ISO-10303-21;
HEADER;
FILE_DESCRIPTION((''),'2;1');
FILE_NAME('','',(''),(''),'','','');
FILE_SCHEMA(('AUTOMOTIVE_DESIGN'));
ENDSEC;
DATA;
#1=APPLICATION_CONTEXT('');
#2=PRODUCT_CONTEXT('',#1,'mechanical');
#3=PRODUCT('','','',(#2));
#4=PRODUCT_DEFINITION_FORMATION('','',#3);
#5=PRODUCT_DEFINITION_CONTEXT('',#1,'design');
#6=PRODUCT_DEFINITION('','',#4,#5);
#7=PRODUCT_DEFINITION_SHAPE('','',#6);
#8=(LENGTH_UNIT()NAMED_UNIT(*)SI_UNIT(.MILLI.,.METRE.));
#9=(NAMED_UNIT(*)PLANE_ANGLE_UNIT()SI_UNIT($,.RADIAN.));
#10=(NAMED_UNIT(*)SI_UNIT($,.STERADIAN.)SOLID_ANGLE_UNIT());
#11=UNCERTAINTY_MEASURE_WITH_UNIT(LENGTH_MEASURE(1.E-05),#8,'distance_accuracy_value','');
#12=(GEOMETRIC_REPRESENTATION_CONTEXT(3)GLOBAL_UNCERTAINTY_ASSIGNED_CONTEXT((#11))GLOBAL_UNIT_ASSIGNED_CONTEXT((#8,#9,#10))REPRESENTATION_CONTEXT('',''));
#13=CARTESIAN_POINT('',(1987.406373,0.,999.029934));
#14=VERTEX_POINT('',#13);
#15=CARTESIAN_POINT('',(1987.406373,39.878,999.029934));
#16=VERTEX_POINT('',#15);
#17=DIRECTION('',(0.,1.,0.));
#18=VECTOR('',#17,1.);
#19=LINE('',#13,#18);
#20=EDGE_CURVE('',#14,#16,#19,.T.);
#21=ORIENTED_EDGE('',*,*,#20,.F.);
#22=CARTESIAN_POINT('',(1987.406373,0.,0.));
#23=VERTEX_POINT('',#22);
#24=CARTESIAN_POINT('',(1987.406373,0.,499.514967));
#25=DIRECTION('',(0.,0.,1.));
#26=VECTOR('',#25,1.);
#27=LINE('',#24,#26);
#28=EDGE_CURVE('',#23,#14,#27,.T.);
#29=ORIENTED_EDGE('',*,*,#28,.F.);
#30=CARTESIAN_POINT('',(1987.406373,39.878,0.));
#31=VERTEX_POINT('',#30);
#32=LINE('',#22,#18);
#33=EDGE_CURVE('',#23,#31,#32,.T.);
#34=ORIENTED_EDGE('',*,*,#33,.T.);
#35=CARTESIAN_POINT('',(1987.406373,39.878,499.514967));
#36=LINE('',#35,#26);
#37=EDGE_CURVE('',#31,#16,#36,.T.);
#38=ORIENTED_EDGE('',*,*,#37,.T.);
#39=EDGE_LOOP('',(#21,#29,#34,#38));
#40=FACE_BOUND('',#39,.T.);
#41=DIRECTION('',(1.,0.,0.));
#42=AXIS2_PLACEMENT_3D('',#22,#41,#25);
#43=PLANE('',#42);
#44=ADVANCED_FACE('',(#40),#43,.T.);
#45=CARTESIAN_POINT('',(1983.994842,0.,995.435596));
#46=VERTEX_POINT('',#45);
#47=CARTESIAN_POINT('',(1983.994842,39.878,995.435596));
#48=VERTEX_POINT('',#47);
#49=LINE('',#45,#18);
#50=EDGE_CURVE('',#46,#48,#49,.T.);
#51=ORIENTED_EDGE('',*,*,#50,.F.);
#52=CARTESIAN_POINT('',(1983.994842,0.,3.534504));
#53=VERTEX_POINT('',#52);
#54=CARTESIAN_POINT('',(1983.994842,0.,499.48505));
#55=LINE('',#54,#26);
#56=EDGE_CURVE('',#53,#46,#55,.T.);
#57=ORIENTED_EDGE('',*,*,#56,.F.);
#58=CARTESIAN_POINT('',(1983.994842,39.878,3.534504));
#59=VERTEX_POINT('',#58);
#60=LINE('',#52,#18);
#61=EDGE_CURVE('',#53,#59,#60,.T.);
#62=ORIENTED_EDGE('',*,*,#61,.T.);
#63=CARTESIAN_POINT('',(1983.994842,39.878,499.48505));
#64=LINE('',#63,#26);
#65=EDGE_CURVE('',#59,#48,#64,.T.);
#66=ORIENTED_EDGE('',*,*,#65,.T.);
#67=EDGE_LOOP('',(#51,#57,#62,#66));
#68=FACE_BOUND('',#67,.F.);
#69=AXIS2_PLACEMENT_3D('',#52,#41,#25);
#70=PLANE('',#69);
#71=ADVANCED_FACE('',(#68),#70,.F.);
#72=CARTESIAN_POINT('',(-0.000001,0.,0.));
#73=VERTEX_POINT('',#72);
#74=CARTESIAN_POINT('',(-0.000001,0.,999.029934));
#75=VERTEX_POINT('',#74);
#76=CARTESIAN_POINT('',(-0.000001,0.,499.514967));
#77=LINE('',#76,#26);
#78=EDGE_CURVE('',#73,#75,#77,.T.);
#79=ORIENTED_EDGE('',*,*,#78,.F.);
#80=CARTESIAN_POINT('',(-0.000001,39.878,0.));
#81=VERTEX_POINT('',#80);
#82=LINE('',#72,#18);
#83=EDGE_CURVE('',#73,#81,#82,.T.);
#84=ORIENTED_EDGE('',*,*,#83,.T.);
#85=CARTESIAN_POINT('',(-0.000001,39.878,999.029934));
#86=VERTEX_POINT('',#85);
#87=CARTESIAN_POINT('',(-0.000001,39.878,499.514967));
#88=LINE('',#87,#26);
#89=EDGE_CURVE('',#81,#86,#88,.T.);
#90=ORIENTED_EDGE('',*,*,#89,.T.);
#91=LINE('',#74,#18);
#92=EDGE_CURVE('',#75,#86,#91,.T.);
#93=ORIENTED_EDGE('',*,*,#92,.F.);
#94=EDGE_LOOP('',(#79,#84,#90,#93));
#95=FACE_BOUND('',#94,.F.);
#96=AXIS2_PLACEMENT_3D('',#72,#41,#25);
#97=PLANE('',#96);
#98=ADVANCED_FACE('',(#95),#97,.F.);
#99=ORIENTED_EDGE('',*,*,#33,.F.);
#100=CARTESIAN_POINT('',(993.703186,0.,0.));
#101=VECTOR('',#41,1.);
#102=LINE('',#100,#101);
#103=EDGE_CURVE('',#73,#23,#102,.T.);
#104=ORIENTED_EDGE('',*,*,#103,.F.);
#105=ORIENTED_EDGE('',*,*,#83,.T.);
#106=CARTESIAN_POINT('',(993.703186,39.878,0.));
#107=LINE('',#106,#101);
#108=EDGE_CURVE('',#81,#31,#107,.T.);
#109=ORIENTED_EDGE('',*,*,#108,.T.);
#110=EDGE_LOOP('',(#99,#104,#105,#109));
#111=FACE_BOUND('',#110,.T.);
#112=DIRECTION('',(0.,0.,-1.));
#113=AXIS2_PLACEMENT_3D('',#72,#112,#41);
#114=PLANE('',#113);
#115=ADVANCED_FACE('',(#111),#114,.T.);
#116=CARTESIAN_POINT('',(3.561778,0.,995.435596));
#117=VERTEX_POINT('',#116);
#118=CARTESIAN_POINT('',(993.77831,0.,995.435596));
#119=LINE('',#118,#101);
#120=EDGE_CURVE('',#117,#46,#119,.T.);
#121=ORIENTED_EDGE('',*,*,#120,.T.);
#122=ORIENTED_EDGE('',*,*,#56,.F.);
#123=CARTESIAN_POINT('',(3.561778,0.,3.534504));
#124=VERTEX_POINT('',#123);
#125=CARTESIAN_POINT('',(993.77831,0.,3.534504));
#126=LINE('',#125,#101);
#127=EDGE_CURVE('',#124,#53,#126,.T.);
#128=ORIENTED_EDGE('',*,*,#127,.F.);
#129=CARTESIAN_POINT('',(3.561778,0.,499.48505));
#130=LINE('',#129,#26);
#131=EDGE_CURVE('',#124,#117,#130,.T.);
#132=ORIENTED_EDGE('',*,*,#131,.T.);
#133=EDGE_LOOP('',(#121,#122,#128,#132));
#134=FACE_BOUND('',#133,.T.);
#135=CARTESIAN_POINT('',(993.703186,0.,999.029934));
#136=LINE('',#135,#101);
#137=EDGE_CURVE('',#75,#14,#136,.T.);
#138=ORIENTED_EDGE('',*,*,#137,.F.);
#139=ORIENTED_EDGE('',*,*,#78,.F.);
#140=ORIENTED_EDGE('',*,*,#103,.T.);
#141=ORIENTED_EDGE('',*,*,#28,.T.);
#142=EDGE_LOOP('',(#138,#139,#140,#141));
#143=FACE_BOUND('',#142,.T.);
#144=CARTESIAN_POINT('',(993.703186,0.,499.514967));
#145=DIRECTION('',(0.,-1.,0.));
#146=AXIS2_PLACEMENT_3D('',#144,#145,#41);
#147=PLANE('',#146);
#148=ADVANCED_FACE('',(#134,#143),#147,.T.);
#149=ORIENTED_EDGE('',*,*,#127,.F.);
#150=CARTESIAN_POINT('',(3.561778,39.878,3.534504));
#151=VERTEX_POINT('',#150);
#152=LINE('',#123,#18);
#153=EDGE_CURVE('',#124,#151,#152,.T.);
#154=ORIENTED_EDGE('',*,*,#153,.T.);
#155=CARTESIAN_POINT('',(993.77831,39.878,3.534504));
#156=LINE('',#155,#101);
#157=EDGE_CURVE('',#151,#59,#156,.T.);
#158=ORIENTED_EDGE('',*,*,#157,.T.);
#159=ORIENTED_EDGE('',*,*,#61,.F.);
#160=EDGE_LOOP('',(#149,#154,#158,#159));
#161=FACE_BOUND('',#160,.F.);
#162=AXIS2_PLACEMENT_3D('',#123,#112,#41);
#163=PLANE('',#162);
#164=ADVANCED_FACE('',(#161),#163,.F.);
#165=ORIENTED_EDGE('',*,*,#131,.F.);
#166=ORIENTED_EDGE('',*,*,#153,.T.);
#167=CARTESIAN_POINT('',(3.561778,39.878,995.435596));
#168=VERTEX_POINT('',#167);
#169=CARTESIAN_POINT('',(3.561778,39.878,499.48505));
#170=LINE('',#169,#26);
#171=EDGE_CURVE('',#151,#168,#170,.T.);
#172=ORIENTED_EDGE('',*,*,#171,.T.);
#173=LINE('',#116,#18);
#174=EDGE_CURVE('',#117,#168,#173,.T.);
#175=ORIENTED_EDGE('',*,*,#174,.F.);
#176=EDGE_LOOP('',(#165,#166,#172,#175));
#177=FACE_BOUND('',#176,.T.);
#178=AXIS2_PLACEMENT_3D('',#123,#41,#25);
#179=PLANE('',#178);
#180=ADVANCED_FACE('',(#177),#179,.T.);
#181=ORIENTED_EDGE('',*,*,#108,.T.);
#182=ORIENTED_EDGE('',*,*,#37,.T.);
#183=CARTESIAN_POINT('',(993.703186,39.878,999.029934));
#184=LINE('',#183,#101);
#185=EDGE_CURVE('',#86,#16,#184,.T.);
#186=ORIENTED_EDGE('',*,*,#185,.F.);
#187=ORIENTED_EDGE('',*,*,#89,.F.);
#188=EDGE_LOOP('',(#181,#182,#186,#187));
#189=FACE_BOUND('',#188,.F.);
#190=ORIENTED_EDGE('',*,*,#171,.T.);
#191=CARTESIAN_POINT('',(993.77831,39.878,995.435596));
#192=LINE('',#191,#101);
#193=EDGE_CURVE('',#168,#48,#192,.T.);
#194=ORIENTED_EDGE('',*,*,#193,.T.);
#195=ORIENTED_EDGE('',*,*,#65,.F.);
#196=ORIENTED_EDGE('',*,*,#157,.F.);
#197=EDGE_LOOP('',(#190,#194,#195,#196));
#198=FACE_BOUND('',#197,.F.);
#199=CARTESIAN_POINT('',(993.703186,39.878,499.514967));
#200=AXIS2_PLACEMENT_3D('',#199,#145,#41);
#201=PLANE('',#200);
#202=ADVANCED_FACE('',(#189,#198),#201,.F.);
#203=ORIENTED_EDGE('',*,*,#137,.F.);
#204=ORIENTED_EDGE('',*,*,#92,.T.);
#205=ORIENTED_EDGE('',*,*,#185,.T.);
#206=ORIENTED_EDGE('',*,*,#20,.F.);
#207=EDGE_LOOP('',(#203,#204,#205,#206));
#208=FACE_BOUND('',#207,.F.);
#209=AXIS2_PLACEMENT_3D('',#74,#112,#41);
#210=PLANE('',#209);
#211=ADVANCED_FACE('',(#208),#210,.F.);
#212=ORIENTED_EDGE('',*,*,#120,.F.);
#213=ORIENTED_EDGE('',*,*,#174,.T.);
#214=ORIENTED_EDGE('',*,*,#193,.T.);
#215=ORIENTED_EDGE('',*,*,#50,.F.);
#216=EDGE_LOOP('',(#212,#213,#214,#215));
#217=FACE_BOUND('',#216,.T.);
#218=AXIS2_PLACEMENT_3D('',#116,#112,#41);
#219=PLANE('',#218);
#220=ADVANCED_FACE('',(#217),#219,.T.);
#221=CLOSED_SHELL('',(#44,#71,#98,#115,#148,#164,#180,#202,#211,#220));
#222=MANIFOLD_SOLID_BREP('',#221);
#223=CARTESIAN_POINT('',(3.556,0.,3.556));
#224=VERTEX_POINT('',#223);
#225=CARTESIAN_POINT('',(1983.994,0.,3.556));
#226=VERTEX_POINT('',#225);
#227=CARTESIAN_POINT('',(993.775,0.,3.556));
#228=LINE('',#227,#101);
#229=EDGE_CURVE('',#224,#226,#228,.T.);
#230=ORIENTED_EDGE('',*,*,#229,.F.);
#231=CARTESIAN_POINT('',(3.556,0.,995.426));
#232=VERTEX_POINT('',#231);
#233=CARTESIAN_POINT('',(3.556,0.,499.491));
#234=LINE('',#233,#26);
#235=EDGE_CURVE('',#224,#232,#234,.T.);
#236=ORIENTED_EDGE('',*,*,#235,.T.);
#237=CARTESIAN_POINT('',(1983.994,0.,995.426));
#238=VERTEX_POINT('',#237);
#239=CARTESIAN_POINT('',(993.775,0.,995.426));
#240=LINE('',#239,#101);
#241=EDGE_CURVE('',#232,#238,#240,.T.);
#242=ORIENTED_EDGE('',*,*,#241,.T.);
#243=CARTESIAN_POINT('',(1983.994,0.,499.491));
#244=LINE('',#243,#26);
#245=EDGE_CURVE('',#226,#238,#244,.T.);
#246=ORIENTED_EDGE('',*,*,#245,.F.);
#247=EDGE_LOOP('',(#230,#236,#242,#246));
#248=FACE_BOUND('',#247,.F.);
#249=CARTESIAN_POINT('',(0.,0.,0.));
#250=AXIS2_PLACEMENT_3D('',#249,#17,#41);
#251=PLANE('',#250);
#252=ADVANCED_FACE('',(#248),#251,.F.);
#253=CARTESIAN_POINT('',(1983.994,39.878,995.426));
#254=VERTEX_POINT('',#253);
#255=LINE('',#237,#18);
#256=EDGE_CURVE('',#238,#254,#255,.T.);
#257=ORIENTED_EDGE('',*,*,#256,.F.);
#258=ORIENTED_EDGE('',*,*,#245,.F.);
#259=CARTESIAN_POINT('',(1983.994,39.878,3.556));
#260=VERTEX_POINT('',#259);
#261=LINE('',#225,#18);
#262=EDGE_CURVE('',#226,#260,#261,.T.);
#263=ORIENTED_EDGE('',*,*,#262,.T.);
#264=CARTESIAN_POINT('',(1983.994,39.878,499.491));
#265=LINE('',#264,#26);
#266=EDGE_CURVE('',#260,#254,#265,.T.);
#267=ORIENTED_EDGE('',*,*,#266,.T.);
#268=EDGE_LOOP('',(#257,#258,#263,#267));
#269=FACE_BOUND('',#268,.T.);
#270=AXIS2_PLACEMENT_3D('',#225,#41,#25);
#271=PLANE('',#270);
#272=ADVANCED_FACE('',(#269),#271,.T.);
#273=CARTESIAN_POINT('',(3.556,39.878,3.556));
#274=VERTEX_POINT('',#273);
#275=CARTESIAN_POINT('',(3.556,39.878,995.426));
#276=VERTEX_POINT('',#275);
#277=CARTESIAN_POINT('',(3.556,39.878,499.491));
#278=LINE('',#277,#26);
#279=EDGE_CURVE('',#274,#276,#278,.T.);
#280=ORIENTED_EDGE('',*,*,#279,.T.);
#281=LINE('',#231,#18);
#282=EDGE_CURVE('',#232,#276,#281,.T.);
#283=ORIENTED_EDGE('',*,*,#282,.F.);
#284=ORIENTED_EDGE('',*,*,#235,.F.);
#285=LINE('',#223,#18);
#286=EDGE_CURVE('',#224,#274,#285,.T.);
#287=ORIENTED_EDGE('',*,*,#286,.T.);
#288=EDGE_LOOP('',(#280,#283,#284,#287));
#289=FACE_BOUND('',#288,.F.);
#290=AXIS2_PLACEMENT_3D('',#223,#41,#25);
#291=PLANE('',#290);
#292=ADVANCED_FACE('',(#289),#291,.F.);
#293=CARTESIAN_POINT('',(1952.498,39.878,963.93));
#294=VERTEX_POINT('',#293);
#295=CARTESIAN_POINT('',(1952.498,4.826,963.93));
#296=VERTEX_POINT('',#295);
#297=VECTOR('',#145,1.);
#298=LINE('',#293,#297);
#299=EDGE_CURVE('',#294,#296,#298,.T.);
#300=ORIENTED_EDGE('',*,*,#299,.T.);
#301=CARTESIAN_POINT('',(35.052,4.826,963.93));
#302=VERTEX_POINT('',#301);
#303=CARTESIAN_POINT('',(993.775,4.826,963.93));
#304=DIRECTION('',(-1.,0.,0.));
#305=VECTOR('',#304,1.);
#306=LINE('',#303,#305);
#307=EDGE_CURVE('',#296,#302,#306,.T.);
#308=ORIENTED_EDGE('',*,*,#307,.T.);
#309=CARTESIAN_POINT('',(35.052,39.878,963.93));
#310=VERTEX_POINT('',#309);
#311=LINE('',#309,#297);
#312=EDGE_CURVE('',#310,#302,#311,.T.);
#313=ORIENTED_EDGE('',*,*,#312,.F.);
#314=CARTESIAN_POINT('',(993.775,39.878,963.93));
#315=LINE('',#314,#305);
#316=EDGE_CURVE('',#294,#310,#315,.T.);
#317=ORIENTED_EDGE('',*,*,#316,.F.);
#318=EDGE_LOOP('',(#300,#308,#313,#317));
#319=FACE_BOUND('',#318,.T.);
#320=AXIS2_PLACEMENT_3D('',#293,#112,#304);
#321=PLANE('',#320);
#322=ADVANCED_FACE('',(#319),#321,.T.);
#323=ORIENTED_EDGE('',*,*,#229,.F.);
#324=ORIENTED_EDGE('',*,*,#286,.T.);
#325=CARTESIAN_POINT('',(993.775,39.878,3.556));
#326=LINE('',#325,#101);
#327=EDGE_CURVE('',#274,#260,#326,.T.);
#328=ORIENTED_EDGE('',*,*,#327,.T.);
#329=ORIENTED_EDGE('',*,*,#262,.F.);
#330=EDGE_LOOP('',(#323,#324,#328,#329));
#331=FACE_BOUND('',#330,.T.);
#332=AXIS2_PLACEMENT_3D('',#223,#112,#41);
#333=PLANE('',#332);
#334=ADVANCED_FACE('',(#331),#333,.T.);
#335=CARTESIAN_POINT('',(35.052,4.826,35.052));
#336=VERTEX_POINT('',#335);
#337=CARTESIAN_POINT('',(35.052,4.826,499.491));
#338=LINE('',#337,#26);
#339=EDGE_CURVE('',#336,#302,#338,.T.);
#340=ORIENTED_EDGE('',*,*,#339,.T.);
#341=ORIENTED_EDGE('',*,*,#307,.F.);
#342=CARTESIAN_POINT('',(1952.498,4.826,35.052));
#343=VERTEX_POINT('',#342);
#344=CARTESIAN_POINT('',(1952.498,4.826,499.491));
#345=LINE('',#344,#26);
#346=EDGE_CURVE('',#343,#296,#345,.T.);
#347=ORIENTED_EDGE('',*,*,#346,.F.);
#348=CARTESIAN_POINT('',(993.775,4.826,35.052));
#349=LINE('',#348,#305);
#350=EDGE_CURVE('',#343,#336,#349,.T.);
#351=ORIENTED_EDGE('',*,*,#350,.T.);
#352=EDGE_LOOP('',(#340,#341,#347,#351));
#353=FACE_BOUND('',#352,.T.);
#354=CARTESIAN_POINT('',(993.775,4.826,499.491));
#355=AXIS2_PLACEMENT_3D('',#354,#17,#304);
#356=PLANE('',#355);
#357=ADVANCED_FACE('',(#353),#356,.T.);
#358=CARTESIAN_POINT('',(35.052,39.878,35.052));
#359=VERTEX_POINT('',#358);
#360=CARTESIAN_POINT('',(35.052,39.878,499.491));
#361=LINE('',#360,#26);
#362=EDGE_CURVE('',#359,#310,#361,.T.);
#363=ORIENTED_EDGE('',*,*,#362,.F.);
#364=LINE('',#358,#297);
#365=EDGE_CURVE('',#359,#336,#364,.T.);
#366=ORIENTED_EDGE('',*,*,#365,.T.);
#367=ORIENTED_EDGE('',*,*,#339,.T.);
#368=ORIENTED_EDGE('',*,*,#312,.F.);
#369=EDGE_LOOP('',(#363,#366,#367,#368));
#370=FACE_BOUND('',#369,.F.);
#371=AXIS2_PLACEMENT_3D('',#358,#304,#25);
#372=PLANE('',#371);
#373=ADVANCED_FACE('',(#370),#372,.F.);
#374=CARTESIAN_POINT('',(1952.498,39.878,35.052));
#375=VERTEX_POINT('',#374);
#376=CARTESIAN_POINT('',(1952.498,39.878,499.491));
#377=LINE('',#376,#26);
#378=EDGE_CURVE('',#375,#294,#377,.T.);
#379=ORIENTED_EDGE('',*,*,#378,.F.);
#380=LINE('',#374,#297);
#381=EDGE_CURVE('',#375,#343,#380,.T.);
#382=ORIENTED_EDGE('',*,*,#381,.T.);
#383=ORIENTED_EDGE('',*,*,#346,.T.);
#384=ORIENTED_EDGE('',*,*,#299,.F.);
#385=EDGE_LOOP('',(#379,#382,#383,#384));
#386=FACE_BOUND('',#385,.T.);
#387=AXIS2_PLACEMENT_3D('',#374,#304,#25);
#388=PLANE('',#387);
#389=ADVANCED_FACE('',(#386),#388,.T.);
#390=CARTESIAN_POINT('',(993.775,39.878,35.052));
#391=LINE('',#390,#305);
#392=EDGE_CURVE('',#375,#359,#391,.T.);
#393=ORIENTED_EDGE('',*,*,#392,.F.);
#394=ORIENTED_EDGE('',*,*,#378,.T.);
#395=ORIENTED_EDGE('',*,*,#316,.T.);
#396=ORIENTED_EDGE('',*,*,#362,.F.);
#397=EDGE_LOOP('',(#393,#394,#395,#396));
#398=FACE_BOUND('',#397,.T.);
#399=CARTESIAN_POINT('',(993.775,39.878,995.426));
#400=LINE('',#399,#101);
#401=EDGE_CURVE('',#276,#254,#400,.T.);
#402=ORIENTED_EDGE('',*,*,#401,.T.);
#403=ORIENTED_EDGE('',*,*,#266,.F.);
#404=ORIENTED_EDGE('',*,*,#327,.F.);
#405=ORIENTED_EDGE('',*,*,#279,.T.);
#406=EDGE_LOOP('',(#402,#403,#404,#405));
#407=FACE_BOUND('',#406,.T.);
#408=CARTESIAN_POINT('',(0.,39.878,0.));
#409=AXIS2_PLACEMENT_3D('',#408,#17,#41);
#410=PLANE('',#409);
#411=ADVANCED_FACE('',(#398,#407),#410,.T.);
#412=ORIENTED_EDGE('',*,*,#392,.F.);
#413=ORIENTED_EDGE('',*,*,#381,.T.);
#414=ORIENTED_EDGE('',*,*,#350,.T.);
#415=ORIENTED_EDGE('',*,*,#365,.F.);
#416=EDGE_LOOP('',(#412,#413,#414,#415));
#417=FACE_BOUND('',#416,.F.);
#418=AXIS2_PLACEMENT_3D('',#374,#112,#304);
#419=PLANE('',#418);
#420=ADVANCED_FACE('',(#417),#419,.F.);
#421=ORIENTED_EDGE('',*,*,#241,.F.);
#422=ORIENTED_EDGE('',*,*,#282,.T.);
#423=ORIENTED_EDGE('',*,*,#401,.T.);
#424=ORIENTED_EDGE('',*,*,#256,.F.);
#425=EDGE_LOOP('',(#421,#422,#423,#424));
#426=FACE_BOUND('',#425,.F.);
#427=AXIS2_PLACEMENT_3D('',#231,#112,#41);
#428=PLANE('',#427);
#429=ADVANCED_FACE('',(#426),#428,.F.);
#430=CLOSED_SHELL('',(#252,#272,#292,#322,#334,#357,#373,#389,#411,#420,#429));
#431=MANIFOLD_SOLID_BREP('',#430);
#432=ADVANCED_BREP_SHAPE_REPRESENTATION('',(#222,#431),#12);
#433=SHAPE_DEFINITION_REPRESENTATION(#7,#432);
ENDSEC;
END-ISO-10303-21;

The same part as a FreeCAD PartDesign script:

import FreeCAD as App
import Part
import Sketcher

V = App.Vector
Q = App.Units.Quantity


def add_polygon(sketch, points):
    """Adds a closed chain of lines whose ends are joined by coincident constraints."""
    first, n = sketch.GeometryCount, len(points)
    for a, b in zip(points, points[1:] + points[:1]):
        sketch.addGeometry(Part.LineSegment(App.Vector(*a, 0), App.Vector(*b, 0)), False)
    for i in range(n):
        sketch.addConstraint(Sketcher.Constraint("Coincident", first + i, 2, first + (i + 1) % n, 1))

doc = App.newDocument("Part")
body = doc.addObject("PartDesign::Body", "Body")

sketch1 = doc.addObject("Sketcher::SketchObject", "Sketch")
body.addObject(sketch1)
sketch1.AttachmentSupport = (doc.XY_Plane, [""])
sketch1.MapMode = "FlatFace"
add_polygon(sketch1, [(0, 40), (0, 0), (1988, 0), (1988, 40)])
sketch1.addConstraint([
    Sketcher.Constraint("Vertical", 0),
    Sketcher.Constraint("Horizontal", 1),
    Sketcher.Constraint("Vertical", 2),
    Sketcher.Constraint("Horizontal", 3),
    Sketcher.Constraint("Coincident", 0, 2, -1, 1),
    Sketcher.Constraint("DistanceX", 1, 1, 1, 2, Q("78.25 in")),
    Sketcher.Constraint("DistanceY", 0, 2, 0, 1, Q("1.57 in")),
])
pad1 = doc.addObject("PartDesign::Pad", "Pad")
body.addObject(pad1)
pad1.Profile = sketch1
pad1.Length = Q("39.33 in")

sketch2 = doc.addObject("Sketcher::SketchObject", "Sketch001")
body.addObject(sketch2)
sketch2.AttachmentSupport = (doc.XZ_Plane, [""])
sketch2.MapMode = "FlatFace"
sketch2.AttachmentOffset = App.Placement(V(0, 0, -1.57 * 25.4), App.Rotation())
add_polygon(sketch2, [(1952, 964), (1952, 35), (35, 35), (35, 964)])
sketch2.addConstraint([
    Sketcher.Constraint("Vertical", 0),
    Sketcher.Constraint("Horizontal", 1),
    Sketcher.Constraint("Vertical", 2),
    Sketcher.Constraint("Horizontal", 3),
    Sketcher.Constraint("DistanceX", 1, 2, 1, 1, Q("75.49 in")),
    Sketcher.Constraint("DistanceY", 0, 2, 0, 1, Q("36.57 in")),
    Sketcher.Constraint("DistanceX", -1, 1, 0, 2, Q("76.87 in")),
    Sketcher.Constraint("DistanceY", -1, 1, 0, 2, Q("1.38 in")),
])
pocket1 = doc.addObject("PartDesign::Pocket", "Pocket")
body.addObject(pocket1)
pocket1.Profile = sketch2
pocket1.Length = Q("1.38 in")
pocket1.Reversed = True

sketch3 = doc.addObject("Sketcher::SketchObject", "Sketch002")
body.addObject(sketch3)
sketch3.AttachmentSupport = (doc.XZ_Plane, [""])
sketch3.MapMode = "FlatFace"
add_polygon(sketch3, [(0, 999), (0, 0), (1988, 0), (1988, 999)])
add_polygon(sketch3, [(1984, 4), (4, 4), (4, 995), (1984, 995)])
sketch3.addConstraint([
    Sketcher.Constraint("Vertical", 0),
    Sketcher.Constraint("Horizontal", 1),
    Sketcher.Constraint("Vertical", 2),
    Sketcher.Constraint("Horizontal", 3),
    Sketcher.Constraint("Horizontal", 4),
    Sketcher.Constraint("Vertical", 5),
    Sketcher.Constraint("Horizontal", 6),
    Sketcher.Constraint("Vertical", 7),
    Sketcher.Constraint("Coincident", 0, 2, -1, 1),
    Sketcher.Constraint("DistanceX", 1, 1, 1, 2, Q("78.25 in")),
    Sketcher.Constraint("DistanceX", 4, 2, 4, 1, Q("77.97 in")),
    Sketcher.Constraint("DistanceY", 0, 2, 0, 1, Q("39.33 in")),
    Sketcher.Constraint("DistanceY", 5, 1, 5, 2, Q("39.05 in")),
    Sketcher.Constraint("DistanceX", -1, 1, 4, 2, Q("0.14 in")),
    Sketcher.Constraint("DistanceY", -1, 1, 4, 2, Q("0.14 in")),
])
pocket2 = doc.addObject("PartDesign::Pocket", "Pocket001")
body.addObject(pocket2)
pocket2.Profile = sketch3
pocket2.Length = Q("1.57 in")
body2 = doc.addObject("PartDesign::Body", "Body001")

sketch4 = doc.addObject("Sketcher::SketchObject", "Sketch003")
body2.addObject(sketch4)
sketch4.AttachmentSupport = (doc.getObject("XZ_Plane001"), [""])
sketch4.MapMode = "FlatFace"
add_polygon(sketch4, [(0, 999), (0, 0), (1987, 0), (1987, 999)])
add_polygon(sketch4, [(1984, 4), (4, 4), (4, 995), (1984, 995)])
sketch4.addConstraint([
    Sketcher.Constraint("Vertical", 0),
    Sketcher.Constraint("Horizontal", 1),
    Sketcher.Constraint("Vertical", 2),
    Sketcher.Constraint("Horizontal", 3),
    Sketcher.Constraint("Horizontal", 4),
    Sketcher.Constraint("Vertical", 5),
    Sketcher.Constraint("Horizontal", 6),
    Sketcher.Constraint("Vertical", 7),
    Sketcher.Constraint("Coincident", 0, 2, -1, 1),
    Sketcher.Constraint("DistanceX", 1, 1, 1, 2, Q("1987.406373 mm")),
    Sketcher.Constraint("DistanceX", 4, 2, 4, 1, Q("1980.433064 mm")),
    Sketcher.Constraint("DistanceY", 0, 2, 0, 1, Q("999.029934 mm")),
    Sketcher.Constraint("DistanceY", 5, 1, 5, 2, Q("991.901092 mm")),
    Sketcher.Constraint("DistanceX", -1, 1, 6, 2, Q("1983.994842 mm")),
    Sketcher.Constraint("DistanceY", 4, 2, 3, 2, Q("995.49543 mm")),
])
pad2 = doc.addObject("PartDesign::Pad", "Pad001")
body2.addObject(pad2)
pad2.Profile = sketch4
pad2.Length = Q("1.57 in")
pad2.Reversed = True

doc.recompute()
